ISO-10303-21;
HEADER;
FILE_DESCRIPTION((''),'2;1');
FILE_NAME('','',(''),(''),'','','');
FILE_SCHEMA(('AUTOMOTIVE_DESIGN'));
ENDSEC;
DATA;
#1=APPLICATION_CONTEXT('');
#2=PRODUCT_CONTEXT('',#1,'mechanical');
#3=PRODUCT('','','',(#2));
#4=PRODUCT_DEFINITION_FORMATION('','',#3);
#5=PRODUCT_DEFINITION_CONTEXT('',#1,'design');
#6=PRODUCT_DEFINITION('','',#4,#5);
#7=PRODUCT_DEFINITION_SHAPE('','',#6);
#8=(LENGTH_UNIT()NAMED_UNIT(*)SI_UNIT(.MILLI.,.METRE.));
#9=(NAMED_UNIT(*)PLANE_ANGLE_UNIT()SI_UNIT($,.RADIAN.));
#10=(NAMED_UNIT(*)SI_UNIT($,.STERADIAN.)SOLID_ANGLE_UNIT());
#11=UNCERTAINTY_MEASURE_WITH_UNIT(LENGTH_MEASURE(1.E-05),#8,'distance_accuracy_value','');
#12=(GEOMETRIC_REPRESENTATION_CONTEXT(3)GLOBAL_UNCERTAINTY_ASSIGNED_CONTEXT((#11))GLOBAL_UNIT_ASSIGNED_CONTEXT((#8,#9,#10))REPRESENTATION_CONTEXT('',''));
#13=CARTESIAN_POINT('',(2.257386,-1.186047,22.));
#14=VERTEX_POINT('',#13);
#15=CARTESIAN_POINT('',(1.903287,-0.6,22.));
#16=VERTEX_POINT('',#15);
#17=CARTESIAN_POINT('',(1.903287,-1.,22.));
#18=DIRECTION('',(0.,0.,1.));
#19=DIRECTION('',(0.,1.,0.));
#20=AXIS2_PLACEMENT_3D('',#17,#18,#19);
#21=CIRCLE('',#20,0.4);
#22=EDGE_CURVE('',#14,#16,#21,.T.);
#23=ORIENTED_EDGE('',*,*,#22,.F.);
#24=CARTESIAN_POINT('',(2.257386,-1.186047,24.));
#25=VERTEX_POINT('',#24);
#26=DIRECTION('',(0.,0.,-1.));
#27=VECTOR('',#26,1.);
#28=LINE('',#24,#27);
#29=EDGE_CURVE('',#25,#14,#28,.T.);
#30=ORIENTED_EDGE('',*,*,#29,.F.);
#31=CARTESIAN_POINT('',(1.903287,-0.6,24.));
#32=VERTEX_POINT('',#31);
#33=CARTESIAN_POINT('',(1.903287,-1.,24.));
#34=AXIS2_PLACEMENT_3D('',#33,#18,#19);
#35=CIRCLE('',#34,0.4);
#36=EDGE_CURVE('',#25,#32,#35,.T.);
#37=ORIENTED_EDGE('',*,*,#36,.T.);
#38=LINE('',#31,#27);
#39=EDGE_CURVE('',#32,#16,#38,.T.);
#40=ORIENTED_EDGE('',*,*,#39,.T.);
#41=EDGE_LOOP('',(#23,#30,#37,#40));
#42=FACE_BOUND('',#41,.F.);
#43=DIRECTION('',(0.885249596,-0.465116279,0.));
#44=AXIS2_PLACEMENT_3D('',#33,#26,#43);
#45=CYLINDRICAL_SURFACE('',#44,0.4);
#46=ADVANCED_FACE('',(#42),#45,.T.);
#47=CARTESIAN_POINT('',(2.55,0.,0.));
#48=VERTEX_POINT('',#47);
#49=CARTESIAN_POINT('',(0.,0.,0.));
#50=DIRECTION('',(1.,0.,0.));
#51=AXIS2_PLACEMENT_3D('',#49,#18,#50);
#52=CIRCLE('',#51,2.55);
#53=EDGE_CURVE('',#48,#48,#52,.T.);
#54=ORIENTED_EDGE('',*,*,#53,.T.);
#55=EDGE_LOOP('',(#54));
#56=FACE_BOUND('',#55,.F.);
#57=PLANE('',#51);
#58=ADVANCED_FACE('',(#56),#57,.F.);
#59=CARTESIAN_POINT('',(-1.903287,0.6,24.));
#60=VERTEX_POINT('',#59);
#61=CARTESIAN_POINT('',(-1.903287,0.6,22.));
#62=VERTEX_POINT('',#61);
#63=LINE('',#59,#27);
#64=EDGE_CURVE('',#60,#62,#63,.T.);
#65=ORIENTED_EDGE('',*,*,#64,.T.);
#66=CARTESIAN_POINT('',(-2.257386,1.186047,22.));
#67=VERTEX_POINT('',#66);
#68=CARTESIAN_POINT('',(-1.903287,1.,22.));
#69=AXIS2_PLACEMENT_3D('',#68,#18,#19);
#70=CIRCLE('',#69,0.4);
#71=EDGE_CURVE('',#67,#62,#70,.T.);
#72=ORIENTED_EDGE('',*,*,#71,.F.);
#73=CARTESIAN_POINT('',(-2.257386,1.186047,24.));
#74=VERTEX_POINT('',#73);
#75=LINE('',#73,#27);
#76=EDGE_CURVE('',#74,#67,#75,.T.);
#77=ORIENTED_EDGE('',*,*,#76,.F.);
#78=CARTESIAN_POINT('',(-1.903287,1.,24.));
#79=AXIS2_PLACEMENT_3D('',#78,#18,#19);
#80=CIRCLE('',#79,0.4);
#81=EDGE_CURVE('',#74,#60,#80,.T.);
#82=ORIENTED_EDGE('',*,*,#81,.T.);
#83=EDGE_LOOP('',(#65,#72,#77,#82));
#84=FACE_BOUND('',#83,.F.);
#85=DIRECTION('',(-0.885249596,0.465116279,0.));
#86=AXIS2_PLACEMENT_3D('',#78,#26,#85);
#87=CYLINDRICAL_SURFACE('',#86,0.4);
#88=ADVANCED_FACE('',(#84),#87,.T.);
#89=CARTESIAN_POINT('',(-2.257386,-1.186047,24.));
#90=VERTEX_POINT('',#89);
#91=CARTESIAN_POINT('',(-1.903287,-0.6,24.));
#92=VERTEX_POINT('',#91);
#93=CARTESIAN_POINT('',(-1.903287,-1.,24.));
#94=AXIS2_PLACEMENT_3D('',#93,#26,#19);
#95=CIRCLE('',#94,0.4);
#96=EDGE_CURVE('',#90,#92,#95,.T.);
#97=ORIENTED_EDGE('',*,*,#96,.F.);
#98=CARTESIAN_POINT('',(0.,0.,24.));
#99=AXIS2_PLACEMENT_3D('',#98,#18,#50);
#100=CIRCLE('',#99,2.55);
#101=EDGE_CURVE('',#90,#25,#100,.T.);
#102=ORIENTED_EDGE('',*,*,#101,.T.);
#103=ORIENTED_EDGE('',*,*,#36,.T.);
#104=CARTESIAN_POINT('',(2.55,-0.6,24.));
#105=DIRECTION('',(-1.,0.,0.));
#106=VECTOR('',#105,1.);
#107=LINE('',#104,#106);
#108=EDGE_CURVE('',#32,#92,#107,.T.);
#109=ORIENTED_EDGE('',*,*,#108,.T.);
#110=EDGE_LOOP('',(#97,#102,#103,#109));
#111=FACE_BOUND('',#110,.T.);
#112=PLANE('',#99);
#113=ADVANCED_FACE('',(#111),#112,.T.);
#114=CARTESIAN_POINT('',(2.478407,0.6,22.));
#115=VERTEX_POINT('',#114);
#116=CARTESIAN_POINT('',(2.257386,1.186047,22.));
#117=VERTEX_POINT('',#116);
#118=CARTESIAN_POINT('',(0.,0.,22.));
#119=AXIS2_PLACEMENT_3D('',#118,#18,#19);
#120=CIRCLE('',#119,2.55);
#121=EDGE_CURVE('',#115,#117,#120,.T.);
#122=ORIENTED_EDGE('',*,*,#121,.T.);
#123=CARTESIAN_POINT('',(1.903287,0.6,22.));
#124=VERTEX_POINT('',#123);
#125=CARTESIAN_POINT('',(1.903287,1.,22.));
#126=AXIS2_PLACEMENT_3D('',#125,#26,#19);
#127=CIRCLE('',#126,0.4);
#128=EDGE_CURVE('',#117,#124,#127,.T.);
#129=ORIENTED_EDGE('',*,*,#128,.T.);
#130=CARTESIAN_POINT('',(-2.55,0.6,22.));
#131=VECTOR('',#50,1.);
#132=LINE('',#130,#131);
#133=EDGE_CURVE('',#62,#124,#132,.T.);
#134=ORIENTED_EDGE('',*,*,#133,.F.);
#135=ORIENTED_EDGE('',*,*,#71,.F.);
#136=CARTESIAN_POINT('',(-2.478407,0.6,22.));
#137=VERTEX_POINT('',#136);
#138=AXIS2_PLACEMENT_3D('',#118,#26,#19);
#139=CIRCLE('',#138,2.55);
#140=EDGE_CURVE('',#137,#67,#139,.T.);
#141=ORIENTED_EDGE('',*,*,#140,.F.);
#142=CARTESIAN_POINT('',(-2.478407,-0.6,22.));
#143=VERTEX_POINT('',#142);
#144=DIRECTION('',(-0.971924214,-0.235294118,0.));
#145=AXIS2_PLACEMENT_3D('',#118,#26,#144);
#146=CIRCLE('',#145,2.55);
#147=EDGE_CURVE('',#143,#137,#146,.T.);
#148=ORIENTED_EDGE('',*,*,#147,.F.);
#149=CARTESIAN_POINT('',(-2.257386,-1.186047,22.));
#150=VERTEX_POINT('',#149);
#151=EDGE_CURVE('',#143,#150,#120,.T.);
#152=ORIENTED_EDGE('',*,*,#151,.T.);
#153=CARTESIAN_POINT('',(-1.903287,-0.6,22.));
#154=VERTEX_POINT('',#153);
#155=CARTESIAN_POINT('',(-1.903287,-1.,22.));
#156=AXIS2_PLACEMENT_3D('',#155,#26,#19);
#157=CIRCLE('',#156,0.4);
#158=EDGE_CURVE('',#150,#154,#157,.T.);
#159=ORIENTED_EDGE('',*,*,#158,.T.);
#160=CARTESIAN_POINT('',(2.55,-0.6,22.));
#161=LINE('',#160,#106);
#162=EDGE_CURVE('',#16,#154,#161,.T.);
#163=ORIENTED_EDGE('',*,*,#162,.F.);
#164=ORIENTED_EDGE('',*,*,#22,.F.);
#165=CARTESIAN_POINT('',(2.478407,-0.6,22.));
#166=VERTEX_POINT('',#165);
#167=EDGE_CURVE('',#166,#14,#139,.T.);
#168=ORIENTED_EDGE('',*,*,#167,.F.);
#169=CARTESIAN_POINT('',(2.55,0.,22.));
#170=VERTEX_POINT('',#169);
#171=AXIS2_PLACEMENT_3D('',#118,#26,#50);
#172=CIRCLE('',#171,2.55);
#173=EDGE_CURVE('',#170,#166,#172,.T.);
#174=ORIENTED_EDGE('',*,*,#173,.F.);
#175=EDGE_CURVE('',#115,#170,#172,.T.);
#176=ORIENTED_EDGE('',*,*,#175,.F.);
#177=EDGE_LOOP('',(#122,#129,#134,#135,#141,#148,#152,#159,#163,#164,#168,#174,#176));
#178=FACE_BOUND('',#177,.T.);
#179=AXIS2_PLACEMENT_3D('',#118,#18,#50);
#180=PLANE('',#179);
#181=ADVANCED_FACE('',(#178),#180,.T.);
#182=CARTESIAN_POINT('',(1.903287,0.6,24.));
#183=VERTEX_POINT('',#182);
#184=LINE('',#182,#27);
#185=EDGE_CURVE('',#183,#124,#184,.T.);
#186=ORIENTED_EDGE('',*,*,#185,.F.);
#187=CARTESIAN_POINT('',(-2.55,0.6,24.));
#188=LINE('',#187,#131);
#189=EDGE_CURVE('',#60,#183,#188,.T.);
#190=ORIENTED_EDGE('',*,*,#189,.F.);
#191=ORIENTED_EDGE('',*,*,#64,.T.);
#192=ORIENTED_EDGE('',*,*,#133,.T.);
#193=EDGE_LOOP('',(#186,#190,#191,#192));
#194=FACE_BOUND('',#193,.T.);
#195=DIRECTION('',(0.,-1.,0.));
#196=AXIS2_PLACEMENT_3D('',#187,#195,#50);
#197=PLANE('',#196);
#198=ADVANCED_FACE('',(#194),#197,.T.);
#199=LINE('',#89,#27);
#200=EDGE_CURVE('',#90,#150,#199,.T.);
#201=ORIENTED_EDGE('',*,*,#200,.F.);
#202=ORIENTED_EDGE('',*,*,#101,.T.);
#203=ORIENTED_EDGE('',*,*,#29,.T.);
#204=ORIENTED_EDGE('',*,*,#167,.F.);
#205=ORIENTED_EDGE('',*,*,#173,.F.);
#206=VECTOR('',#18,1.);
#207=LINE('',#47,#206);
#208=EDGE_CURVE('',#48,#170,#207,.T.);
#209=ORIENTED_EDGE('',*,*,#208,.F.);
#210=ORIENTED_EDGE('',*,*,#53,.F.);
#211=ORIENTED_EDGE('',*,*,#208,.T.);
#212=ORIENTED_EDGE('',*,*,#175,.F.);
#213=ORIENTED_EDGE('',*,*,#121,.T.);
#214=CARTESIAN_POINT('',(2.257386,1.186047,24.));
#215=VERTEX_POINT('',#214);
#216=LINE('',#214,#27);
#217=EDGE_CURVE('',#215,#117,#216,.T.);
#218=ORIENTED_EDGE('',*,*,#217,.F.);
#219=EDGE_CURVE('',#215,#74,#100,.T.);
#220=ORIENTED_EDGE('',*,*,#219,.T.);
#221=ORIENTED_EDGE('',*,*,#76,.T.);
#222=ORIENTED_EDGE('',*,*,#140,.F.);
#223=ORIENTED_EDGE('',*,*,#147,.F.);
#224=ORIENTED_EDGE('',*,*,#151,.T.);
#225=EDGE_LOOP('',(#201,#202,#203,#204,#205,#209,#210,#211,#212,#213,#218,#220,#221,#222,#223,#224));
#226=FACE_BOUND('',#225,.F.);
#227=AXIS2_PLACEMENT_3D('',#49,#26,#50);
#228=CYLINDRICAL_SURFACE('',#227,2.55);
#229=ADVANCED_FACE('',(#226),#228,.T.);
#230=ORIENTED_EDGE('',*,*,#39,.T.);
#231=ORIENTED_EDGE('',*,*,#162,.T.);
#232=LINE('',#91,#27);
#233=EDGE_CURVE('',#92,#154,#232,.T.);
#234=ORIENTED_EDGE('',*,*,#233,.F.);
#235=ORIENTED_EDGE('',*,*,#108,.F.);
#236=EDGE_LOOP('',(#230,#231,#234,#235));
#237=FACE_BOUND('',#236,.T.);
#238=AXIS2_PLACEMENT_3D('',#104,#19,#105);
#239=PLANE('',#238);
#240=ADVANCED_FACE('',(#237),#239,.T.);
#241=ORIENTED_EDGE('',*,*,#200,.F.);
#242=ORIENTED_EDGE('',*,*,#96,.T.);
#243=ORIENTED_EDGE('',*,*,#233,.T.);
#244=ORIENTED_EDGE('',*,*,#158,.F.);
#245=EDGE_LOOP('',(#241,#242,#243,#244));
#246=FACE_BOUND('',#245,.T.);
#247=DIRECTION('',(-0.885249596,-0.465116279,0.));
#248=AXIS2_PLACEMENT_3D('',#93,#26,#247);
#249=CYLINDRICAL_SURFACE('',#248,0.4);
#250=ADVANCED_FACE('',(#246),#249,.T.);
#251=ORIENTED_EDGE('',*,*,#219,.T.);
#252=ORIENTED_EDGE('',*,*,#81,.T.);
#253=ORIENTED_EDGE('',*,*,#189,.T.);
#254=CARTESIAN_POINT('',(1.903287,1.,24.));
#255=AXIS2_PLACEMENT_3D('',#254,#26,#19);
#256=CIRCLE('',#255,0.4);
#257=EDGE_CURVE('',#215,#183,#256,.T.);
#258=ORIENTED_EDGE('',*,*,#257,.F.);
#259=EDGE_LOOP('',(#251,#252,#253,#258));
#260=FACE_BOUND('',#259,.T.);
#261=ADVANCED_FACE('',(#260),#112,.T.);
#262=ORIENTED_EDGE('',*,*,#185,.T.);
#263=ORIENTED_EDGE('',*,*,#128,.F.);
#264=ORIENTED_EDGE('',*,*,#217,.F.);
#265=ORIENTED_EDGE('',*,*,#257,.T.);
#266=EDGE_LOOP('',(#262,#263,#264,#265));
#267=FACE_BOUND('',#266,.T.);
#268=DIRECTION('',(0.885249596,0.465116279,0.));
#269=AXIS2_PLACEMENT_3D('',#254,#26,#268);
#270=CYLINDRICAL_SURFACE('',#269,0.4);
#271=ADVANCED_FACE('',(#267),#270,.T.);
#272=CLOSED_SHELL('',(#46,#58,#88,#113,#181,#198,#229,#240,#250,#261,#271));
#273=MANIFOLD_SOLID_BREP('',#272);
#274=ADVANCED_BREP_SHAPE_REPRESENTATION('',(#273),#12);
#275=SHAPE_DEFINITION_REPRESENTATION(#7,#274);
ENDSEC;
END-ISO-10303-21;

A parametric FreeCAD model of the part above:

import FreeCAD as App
import Part
import Sketcher
from FreeCAD import Vector
Q = App.Units.Quantity


def edges_at(feature, points):
    """Names of the edges that pass closest to the given points."""
    edges = feature.Shape.Edges
    near = lambda p: min(range(len(edges)), key=lambda i: edges[i].distToShape(Part.Vertex(*p))[0])
    return sorted({f"Edge{near(p) + 1}" for p in points})


def add_polygon(sketch, points):
    """Adds a closed chain of lines whose ends are joined by coincident constraints."""
    first, n = sketch.GeometryCount, len(points)
    for a, b in zip(points, points[1:] + points[:1]):
        sketch.addGeometry(Part.LineSegment(App.Vector(*a, 0), App.Vector(*b, 0)), False)
    for i in range(n):
        sketch.addConstraint(Sketcher.Constraint("Coincident", first + i, 2, first + (i + 1) % n, 1))

doc = App.newDocument("Part")
body = doc.addObject("PartDesign::Body", "Body")

sketch1 = body.newObject("Sketcher::SketchObject", "Sketch")
sketch1.AttachmentSupport = (doc.getObject("XY_Plane"), [""])
sketch1.MapMode = "FlatFace"
sketch1.addGeometry(Part.Circle(Vector(0, 0, 0), Vector(0, 0, 1), 2.5), False)
sketch1.addConstraint(Sketcher.Constraint("Coincident", 0, 3, -1, 1))
sketch1.addConstraint(Sketcher.Constraint("Diameter", 0, Q("5.1 mm")))
pad1 = body.newObject("PartDesign::Pad", "Pad")
pad1.Profile = sketch1
pad1.Length = 24

sketch2 = body.newObject("Sketcher::SketchObject", "Sketch001")
sketch2.AttachmentSupport = (doc.getObject("XY_Plane"), [""])
sketch2.MapMode = "FlatFace"
sketch2.AttachmentOffset = App.Placement(Vector(0, 0, 24), App.Rotation())
add_polygon(sketch2, [(-2.5, -0.6), (2.5, -0.6), (2.5, 0.6), (-2.5, 0.6)])
sketch2.addConstraint(Sketcher.Constraint("Horizontal", 0))
sketch2.addConstraint(Sketcher.Constraint("Vertical", 1))
sketch2.addConstraint(Sketcher.Constraint("Horizontal", 2))
sketch2.addConstraint(Sketcher.Constraint("Vertical", 3))
sketch2.addConstraint(Sketcher.Constraint("Symmetric", 0, 2, 2, 2, -1, 1))
sketch2.addConstraint(Sketcher.Constraint("DistanceY", 1, 1, 1, 2, Q("1.2 mm")))
sketch2.addConstraint(Sketcher.Constraint("DistanceX", 0, 1, 0, 2, Q("5.1 mm")))
pocket1 = body.newObject("PartDesign::Pocket", "Pocket")
pocket1.Profile = sketch2
pocket1.Length = 2
doc.recompute()

fillet = body.newObject("PartDesign::Fillet", "Fillet")
fillet.Base = (pocket1, edges_at(pocket1, [
    (2.478, 0.6, 23),
    (-2.478, 0.6, 23),
    (-2.478, -0.6, 23),
    (2.478, -0.6, 23),
]))
fillet.Radius = 0.4

doc.recompute()
